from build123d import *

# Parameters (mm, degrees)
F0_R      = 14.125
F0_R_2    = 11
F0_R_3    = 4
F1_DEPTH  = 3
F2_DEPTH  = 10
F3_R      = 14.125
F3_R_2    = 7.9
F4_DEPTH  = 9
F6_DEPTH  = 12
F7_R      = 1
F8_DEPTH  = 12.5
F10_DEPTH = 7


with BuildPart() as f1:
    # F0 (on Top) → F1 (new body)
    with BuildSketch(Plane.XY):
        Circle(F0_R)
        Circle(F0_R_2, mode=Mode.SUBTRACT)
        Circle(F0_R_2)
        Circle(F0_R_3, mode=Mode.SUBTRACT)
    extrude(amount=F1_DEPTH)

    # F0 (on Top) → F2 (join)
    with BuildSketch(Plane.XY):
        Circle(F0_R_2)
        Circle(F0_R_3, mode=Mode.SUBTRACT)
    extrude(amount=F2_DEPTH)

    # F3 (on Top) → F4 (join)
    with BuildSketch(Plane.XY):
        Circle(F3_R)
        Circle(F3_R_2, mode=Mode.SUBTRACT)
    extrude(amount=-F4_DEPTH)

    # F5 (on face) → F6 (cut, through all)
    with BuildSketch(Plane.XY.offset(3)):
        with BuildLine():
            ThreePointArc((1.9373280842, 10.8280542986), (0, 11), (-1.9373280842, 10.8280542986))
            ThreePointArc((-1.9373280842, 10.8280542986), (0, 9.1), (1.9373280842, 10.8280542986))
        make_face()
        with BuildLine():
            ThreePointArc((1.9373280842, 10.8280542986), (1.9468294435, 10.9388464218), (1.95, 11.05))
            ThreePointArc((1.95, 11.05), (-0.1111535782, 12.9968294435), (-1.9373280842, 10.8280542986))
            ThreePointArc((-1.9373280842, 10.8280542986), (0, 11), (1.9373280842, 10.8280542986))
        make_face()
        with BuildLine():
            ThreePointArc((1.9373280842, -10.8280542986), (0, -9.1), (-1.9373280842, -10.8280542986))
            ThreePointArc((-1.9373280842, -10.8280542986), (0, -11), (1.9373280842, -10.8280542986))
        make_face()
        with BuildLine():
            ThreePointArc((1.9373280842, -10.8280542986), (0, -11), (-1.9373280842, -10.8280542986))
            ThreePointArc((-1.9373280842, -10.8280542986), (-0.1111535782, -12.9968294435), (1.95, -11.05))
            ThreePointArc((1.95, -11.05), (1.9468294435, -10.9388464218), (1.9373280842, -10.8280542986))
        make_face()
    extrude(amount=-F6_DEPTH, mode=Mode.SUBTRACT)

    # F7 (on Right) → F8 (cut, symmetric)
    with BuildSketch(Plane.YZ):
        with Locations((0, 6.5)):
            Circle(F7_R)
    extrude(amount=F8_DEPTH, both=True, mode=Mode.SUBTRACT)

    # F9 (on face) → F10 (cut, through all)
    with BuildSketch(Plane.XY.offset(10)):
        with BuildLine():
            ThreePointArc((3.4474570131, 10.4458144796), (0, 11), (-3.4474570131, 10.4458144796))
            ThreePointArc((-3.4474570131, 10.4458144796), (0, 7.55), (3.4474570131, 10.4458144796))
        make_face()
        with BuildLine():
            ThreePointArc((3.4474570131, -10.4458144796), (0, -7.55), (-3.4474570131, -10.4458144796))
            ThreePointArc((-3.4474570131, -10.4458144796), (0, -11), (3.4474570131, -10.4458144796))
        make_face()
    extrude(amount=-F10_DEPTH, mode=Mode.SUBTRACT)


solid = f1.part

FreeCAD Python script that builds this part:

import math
import FreeCAD as App
import Part
import Sketcher

V = App.Vector

doc = App.newDocument("Part")
body = doc.addObject("PartDesign::Body", "Body")

sketch1 = body.newObject("Sketcher::SketchObject", "Sketch")
sketch1.AttachmentSupport = (doc.getObject("XY_Plane"), [""])
sketch1.MapMode = "FlatFace"
sketch1.addGeometry([
    Part.Circle(V(0, 0, 0), V(0, 0, 1), 14.1),
    Part.Circle(V(0, 0, 0), V(0, 0, 1), 4),
], False)
sketch1.addConstraint([
    Sketcher.Constraint("Coincident", 0, 3, -1, 1),
    Sketcher.Constraint("Coincident", 1, 3, -1, 1),
    Sketcher.Constraint("Diameter", 1, 8.0),
    Sketcher.Constraint("Diameter", 0, 28.25),
])
pad1 = body.newObject("PartDesign::Pad", "Pad")
pad1.Profile = sketch1
pad1.Length = 3

sketch2 = body.newObject("Sketcher::SketchObject", "Sketch001")
sketch2.AttachmentSupport = (doc.getObject("XY_Plane"), [""])
sketch2.MapMode = "FlatFace"
sketch2.addGeometry([
    Part.Circle(V(0, 0, 0), V(0, 0, 1), 11),
    Part.Circle(V(0, 0, 0), V(0, 0, 1), 4),
], False)
sketch2.addConstraint([
    Sketcher.Constraint("Coincident", 0, 3, -1, 1),
    Sketcher.Constraint("Coincident", 1, 3, -1, 1),
    Sketcher.Constraint("Diameter", 0, 22.0),
    Sketcher.Constraint("Diameter", 1, 8.0),
])
pad2 = body.newObject("PartDesign::Pad", "Pad001")
pad2.Profile = sketch2
pad2.Length = 10

sketch3 = body.newObject("Sketcher::SketchObject", "Sketch002")
sketch3.AttachmentSupport = (doc.getObject("XY_Plane"), [""])
sketch3.MapMode = "FlatFace"
sketch3.addGeometry([
    Part.Circle(V(0, 0, 0), V(0, 0, 1), 14),
    Part.Circle(V(0, 0, 0), V(0, 0, 1), 8),
], False)
sketch3.addConstraint([
    Sketcher.Constraint("Coincident", 0, 3, -1, 1),
    Sketcher.Constraint("Coincident", 1, 3, -1, 1),
    Sketcher.Constraint("Diameter", 1, 15.8),
    Sketcher.Constraint("Diameter", 0, 28.25),
])
pad3 = body.newObject("PartDesign::Pad", "Pad002")
pad3.Profile = sketch3
pad3.Length = 9
pad3.Reversed = True

sketch4 = body.newObject("Sketcher::SketchObject", "Sketch003")
sketch4.AttachmentSupport = (doc.getObject("XY_Plane"), [""])
sketch4.MapMode = "FlatFace"
sketch4.AttachmentOffset = App.Placement(V(0, 0, 3), App.Rotation())
sketch4.addGeometry([
    Part.ArcOfCircle(Part.Circle(V(0, 11.05, 0), V(0, 0, 1), 1.95), math.radians(-173), math.radians(-7)),
    Part.ArcOfCircle(Part.Circle(V(0, 11.05, 0), V(0, 0, 1), 1.95), math.radians(-6.54), math.radians(0)),
    Part.ArcOfCircle(Part.Circle(V(0, 11.05, 0), V(0, 0, 1), 1.95), math.radians(0), math.radians(187)),
    Part.ArcOfCircle(Part.Circle(V(0, -11.05, 0), V(0, 0, 1), 1.95), math.radians(7), math.radians(173)),
    Part.ArcOfCircle(Part.Circle(V(0, -11.05, 0), V(0, 0, 1), 1.95), math.radians(173), math.radians(360)),
    Part.ArcOfCircle(Part.Circle(V(0, -11.05, 0), V(0, 0, 1), 1.95), math.radians(0), math.radians(6.54)),
], False)
sketch4.addConstraint([
    Sketcher.Constraint("Tangent", 0, 2, 1, 1),
    Sketcher.Constraint("Tangent", 1, 2, 2, 1),
    Sketcher.Constraint("Tangent", 2, 2, 0, 1),
    Sketcher.Constraint("Tangent", 3, 2, 4, 1),
    Sketcher.Constraint("Tangent", 4, 2, 5, 1),
    Sketcher.Constraint("Tangent", 5, 2, 3, 1),
    Sketcher.Constraint("Equal", 2, 3),
    Sketcher.Constraint("Symmetric", 0, 3, 3, 3, -1, 1),
    Sketcher.Constraint("Symmetric", 0, 2, 2, 2, -2),
    Sketcher.Constraint("Horizontal", 2, 3, 1, 2),
    Sketcher.Constraint("Horizontal", 5, 3, 4, 2),
    Sketcher.Constraint("Horizontal", 3, 2, 5, 2),
    Sketcher.Constraint("Vertical", 2, 2, 3, 2),
    Sketcher.Constraint("Radius", 0, 1.95),
    Sketcher.Constraint("DistanceY", 3, 3, 0, 3, 22.1),
    Sketcher.Constraint("DistanceX", -1, 1, 0, 2, 1.937328),
])
pocket1 = body.newObject("PartDesign::Pocket", "Pocket")
pocket1.Profile = sketch4
pocket1.Type = "ThroughAll"

sketch5 = body.newObject("Sketcher::SketchObject", "Sketch004")
sketch5.AttachmentSupport = (doc.getObject("YZ_Plane"), [""])
sketch5.MapMode = "FlatFace"
sketch5.addGeometry(Part.Circle(V(0, 6.5, 0), V(0, 0, 1), 1), False)
sketch5.addConstraint([
    Sketcher.Constraint("PointOnObject", 0, 3, -2),
    Sketcher.Constraint("Diameter", 0, 2.0),
    Sketcher.Constraint("DistanceY", -1, 1, 0, 3, 6.5),
])
pocket2 = body.newObject("PartDesign::Pocket", "Pocket001")
pocket2.Profile = sketch5
pocket2.Length = 25
pocket2.Midplane = True

sketch6 = body.newObject("Sketcher::SketchObject", "Sketch005")
sketch6.AttachmentSupport = (doc.getObject("XY_Plane"), [""])
sketch6.MapMode = "FlatFace"
sketch6.AttachmentOffset = App.Placement(V(0, 0, 10), App.Rotation())
sketch6.addGeometry([
    Part.ArcOfCircle(Part.Circle(V(0, 0, 0), V(0, 0, 1), 11), math.radians(72), math.radians(108)),
    Part.ArcOfCircle(Part.Circle(V(0, 11.1, 0), V(0, 0, 1), 3.5), math.radians(-170), math.radians(-10)),
    Part.ArcOfCircle(Part.Circle(V(0, -11.1, 0), V(0, 0, 1), 3.5), math.radians(10), math.radians(170)),
    Part.ArcOfCircle(Part.Circle(V(0, 0, 0), V(0, 0, 1), 11), math.radians(-108), math.radians(-72)),
], False)
sketch6.addConstraint([
    Sketcher.Constraint("Coincident", 0, 1, 1, 2),
    Sketcher.Constraint("Coincident", 1, 1, 0, 2),
    Sketcher.Constraint("Coincident", 2, 1, 3, 2),
    Sketcher.Constraint("Coincident", 3, 1, 2, 2),
    Sketcher.Constraint("Coincident", 0, 3, -1, 1),
    Sketcher.Constraint("Coincident", 3, 3, -1, 1),
    Sketcher.Constraint("Equal", 1, 2),
    Sketcher.Constraint("Equal", 0, 3),
    Sketcher.Constraint("Symmetric", 1, 3, 2, 3, -1, 1),
    Sketcher.Constraint("PointOnObject", 1, 3, -2),
    Sketcher.Constraint("Radius", 0, 11.0),
    Sketcher.Constraint("Radius", 1, 3.5),
    Sketcher.Constraint("DistanceY", 2, 3, 1, 3, 22.1),
])
pocket3 = body.newObject("PartDesign::Pocket", "Pocket002")
pocket3.Profile = sketch6
pocket3.Length = 7

doc.recompute()
